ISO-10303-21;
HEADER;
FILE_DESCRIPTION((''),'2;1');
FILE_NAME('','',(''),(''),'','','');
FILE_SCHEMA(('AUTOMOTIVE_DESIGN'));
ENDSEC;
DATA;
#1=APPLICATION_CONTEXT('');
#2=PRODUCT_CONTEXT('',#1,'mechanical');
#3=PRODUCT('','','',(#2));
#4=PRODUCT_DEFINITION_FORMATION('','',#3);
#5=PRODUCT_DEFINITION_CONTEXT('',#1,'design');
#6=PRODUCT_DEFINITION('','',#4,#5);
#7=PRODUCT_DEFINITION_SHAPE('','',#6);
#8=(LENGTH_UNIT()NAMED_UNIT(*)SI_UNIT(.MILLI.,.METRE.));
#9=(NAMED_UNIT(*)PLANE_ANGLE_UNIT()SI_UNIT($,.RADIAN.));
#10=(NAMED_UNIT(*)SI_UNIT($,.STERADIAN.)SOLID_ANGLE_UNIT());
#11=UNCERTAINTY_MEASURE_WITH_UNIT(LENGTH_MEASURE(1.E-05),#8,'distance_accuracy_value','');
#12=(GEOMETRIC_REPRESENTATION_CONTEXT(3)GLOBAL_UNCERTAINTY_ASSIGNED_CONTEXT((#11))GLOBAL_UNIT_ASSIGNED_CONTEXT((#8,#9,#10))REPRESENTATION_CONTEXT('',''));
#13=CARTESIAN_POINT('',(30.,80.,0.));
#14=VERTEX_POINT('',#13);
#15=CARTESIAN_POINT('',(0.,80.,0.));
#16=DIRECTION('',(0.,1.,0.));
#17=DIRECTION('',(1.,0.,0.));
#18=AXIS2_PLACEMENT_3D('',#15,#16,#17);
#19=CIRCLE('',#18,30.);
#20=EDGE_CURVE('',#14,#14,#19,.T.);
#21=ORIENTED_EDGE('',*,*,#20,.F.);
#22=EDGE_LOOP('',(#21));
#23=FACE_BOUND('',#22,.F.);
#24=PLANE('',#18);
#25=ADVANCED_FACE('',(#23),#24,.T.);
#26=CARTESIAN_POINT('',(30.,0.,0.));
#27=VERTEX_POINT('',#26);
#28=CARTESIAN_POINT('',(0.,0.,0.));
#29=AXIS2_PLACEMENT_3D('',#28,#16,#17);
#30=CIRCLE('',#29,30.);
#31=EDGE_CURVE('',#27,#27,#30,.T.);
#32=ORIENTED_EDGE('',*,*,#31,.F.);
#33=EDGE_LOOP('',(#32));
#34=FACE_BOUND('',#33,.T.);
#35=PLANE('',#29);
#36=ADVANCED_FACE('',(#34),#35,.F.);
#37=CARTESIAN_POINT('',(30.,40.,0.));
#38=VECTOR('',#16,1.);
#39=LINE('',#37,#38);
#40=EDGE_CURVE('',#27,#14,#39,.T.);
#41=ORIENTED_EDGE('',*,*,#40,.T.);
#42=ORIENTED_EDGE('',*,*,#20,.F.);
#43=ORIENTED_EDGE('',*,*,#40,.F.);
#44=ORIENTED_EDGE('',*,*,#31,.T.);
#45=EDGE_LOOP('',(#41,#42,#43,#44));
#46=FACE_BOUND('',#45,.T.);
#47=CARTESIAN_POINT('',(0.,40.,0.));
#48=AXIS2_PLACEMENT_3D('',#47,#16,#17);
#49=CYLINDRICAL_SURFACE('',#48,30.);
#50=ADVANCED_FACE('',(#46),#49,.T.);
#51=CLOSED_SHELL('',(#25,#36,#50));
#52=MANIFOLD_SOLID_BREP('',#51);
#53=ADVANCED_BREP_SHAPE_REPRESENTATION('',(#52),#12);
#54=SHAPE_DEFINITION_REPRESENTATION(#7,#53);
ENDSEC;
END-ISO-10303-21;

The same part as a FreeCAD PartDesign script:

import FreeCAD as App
import Part
import Sketcher

V = App.Vector

doc = App.newDocument("Part")
params = doc.addObject("Spreadsheet::Sheet", "Params")
for row, (alias, value) in enumerate([
    ("sketch1_width", "30 mm"),
    ("sketch1_height", "80 mm"),
    ("revolution_angle", "360 deg"),
], start=1):
    params.set(f"A{row}", alias)
    params.set(f"B{row}", "=" + value)
    params.setAlias(f"B{row}", alias)

body = doc.addObject("PartDesign::Body", "Body")

# Sketch on XY plane
sketch1 = body.newObject("Sketcher::SketchObject", "Sketch")
sketch1.AttachmentSupport = (doc.getObject("XY_Plane"), [""])
sketch1.MapMode = "FlatFace"
sketch1.addGeometry(Part.LineSegment(V(0, 80, 0), V(0, 0, 0)), False)
sketch1.addGeometry(Part.LineSegment(V(0, 0, 0), V(30, 0, 0)), False)
sketch1.addGeometry(Part.LineSegment(V(30, 0, 0), V(30, 80, 0)), False)
sketch1.addGeometry(Part.LineSegment(V(30, 80, 0), V(0, 80, 0)), False)
sketch1.addConstraint(Sketcher.Constraint("Coincident", 0, 2, 1, 1))
sketch1.addConstraint(Sketcher.Constraint("Coincident", 1, 2, 2, 1))
sketch1.addConstraint(Sketcher.Constraint("Coincident", 2, 2, 3, 1))
sketch1.addConstraint(Sketcher.Constraint("Coincident", 3, 2, 0, 1))
sketch1.addConstraint(Sketcher.Constraint("Vertical", 0))
sketch1.addConstraint(Sketcher.Constraint("Horizontal", 1))
sketch1.addConstraint(Sketcher.Constraint("Vertical", 2))
sketch1.addConstraint(Sketcher.Constraint("Horizontal", 3))
sketch1.addConstraint(Sketcher.Constraint("Coincident", 0, 2, -1, 1))
sketch1.addConstraint(Sketcher.Constraint("DistanceX", 1, 1, 1, 2, 30.0))
sketch1.addConstraint(Sketcher.Constraint("DistanceY", 0, 2, 0, 1, 80.0))
sketch1.setExpression("Constraints[9]", "Params.sketch1_width")
sketch1.setExpression("Constraints[10]", "Params.sketch1_height")
revolution = body.newObject("PartDesign::Revolution", "Revolution")
revolution.Profile = sketch1
revolution.ReferenceAxis = (sketch1, ["V_Axis"])
revolution.setExpression("Angle", "Params.revolution_angle")

doc.recompute()
